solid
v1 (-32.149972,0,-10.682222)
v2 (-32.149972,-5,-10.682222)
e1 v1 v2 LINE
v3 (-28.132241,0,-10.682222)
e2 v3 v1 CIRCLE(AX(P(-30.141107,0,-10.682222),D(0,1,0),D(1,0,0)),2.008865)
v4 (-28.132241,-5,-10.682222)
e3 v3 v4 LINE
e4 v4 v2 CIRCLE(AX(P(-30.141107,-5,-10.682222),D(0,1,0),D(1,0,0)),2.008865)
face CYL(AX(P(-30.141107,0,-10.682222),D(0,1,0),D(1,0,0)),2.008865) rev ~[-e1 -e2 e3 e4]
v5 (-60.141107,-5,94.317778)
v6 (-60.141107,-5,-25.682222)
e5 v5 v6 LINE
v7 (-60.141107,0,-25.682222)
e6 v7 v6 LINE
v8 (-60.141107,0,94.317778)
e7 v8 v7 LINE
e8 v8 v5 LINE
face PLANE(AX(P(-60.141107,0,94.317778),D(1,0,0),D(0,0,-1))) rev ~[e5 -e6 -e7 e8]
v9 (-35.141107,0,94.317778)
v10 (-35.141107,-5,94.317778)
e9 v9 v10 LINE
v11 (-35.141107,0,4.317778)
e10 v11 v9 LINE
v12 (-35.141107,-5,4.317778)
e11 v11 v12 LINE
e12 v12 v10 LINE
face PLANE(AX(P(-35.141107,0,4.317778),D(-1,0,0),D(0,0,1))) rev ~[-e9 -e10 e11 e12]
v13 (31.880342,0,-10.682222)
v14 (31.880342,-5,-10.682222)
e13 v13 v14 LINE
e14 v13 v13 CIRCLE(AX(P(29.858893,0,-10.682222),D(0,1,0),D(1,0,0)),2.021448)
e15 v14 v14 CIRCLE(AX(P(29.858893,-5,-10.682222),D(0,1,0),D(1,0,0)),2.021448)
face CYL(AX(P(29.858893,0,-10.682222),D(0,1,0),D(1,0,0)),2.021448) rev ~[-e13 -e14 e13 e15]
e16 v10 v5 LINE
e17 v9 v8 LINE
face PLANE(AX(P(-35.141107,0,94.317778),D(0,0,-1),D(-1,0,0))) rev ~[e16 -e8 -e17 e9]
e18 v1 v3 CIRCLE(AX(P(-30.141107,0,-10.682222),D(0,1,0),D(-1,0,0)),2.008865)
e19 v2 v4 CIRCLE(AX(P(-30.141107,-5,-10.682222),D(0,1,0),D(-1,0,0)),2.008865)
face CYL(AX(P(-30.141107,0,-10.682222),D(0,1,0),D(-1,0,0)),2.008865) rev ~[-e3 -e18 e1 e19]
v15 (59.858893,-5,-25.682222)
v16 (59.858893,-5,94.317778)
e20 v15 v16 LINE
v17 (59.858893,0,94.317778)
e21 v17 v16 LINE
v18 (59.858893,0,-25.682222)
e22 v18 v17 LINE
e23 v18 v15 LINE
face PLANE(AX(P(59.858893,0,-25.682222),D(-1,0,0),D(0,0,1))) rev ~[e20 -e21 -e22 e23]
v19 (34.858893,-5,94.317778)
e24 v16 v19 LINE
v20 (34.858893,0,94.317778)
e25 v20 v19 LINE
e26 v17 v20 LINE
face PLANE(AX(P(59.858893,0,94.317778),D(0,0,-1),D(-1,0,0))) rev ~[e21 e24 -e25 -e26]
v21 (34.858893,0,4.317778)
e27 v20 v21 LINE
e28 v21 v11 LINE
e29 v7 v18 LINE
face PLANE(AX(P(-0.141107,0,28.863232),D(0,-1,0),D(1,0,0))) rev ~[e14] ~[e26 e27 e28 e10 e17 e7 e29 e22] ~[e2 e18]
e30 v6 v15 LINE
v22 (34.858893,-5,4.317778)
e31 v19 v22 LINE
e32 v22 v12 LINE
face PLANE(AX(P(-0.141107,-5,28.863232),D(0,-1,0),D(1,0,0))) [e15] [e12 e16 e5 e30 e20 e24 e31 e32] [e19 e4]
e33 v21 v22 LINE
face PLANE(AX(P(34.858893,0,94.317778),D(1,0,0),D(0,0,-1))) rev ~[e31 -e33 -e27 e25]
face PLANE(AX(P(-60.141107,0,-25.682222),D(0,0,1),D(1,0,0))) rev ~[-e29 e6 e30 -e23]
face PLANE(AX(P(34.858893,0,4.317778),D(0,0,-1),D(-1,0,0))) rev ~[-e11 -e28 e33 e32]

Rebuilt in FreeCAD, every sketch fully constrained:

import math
import FreeCAD as App
import Part
import Sketcher

V = App.Vector


def add_polygon(sketch, points):
    """Adds a closed chain of lines whose ends are joined by coincident constraints."""
    first, n = sketch.GeometryCount, len(points)
    for a, b in zip(points, points[1:] + points[:1]):
        sketch.addGeometry(Part.LineSegment(App.Vector(*a, 0), App.Vector(*b, 0)), False)
    for i in range(n):
        sketch.addConstraint(Sketcher.Constraint("Coincident", first + i, 2, first + (i + 1) % n, 1))

doc = App.newDocument("Part")
body = doc.addObject("PartDesign::Body", "Body")

# Sketch on XZ plane
sketch1 = doc.addObject("Sketcher::SketchObject", "Sketch")
body.addObject(sketch1)
sketch1.AttachmentSupport = (doc.XZ_Plane, [""])
sketch1.MapMode = "FlatFace"
add_polygon(sketch1, [(-60.1, 94.3), (-60.1, -25.7), (59.9, -25.7), (59.9, 94.3), (34.9, 94.3), (34.9, 4.3), (-35.1, 4.3), (-35.1, 94.3)])  # lines 0-7
sketch1.addGeometry(Part.ArcOfCircle(Part.Circle(V(-30.1, -10.7, 0), V(0, 0, 1), 2), math.radians(180), math.radians(360)), False)  # 8
sketch1.addGeometry(Part.ArcOfCircle(Part.Circle(V(-30.1, -10.7, 0), V(0, 0, 1), 2), math.radians(0), math.radians(180)), False)  # 9
sketch1.addGeometry(Part.Circle(V(29.9, -10.7, 0), V(0, 0, 1), 2), False)  # 10
sketch1.addConstraint([
    Sketcher.Constraint("Tangent", 8, 1, 9, 2),
    Sketcher.Constraint("Coincident", 9, 1, 8, 2),
    Sketcher.Constraint("Vertical", 0),
    Sketcher.Constraint("Horizontal", 1),
    Sketcher.Constraint("Vertical", 2),
    Sketcher.Constraint("Horizontal", 3),
    Sketcher.Constraint("Vertical", 4),
    Sketcher.Constraint("Horizontal", 5),
    Sketcher.Constraint("Vertical", 6),
    Sketcher.Constraint("Horizontal", 7),
    Sketcher.Constraint("Horizontal", 9, 3, 10, 3),
    Sketcher.Constraint("Horizontal", 3, 2, 6, 2),
    Sketcher.Constraint("Horizontal", 10, 3, 8, 1),
    Sketcher.Constraint("Horizontal", 8, 1, 9, 1),
    Sketcher.Constraint("Equal", 3, 7),
    Sketcher.Constraint("Equal", 1, 0),
    Sketcher.Constraint("DistanceX", 1, 1, 1, 2, 120.0),
    Sketcher.Constraint("DistanceX", 3, 2, 3, 1, 25.0),
    Sketcher.Constraint("DistanceY", 4, 2, 4, 1, 90.0),
    Sketcher.Constraint("DistanceX", 8, 3, 10, 3, 60.0),
    Sketcher.Constraint("DistanceX", 0, 2, 8, 3, 30.0),
    Sketcher.Constraint("DistanceY", 0, 2, 8, 3, 15.0),
    Sketcher.Constraint("Diameter", 10, 4.042896),
    Sketcher.Constraint("Radius", 8, 2.008865),
    Sketcher.Constraint("DistanceX", 8, 1, -1, 1, 32.149972),
    Sketcher.Constraint("DistanceY", 8, 3, -1, 1, 10.682222),
])
pad1 = doc.addObject("PartDesign::Pad", "Pad")
body.addObject(pad1)
pad1.Profile = sketch1
pad1.Length = 5

doc.recompute()
